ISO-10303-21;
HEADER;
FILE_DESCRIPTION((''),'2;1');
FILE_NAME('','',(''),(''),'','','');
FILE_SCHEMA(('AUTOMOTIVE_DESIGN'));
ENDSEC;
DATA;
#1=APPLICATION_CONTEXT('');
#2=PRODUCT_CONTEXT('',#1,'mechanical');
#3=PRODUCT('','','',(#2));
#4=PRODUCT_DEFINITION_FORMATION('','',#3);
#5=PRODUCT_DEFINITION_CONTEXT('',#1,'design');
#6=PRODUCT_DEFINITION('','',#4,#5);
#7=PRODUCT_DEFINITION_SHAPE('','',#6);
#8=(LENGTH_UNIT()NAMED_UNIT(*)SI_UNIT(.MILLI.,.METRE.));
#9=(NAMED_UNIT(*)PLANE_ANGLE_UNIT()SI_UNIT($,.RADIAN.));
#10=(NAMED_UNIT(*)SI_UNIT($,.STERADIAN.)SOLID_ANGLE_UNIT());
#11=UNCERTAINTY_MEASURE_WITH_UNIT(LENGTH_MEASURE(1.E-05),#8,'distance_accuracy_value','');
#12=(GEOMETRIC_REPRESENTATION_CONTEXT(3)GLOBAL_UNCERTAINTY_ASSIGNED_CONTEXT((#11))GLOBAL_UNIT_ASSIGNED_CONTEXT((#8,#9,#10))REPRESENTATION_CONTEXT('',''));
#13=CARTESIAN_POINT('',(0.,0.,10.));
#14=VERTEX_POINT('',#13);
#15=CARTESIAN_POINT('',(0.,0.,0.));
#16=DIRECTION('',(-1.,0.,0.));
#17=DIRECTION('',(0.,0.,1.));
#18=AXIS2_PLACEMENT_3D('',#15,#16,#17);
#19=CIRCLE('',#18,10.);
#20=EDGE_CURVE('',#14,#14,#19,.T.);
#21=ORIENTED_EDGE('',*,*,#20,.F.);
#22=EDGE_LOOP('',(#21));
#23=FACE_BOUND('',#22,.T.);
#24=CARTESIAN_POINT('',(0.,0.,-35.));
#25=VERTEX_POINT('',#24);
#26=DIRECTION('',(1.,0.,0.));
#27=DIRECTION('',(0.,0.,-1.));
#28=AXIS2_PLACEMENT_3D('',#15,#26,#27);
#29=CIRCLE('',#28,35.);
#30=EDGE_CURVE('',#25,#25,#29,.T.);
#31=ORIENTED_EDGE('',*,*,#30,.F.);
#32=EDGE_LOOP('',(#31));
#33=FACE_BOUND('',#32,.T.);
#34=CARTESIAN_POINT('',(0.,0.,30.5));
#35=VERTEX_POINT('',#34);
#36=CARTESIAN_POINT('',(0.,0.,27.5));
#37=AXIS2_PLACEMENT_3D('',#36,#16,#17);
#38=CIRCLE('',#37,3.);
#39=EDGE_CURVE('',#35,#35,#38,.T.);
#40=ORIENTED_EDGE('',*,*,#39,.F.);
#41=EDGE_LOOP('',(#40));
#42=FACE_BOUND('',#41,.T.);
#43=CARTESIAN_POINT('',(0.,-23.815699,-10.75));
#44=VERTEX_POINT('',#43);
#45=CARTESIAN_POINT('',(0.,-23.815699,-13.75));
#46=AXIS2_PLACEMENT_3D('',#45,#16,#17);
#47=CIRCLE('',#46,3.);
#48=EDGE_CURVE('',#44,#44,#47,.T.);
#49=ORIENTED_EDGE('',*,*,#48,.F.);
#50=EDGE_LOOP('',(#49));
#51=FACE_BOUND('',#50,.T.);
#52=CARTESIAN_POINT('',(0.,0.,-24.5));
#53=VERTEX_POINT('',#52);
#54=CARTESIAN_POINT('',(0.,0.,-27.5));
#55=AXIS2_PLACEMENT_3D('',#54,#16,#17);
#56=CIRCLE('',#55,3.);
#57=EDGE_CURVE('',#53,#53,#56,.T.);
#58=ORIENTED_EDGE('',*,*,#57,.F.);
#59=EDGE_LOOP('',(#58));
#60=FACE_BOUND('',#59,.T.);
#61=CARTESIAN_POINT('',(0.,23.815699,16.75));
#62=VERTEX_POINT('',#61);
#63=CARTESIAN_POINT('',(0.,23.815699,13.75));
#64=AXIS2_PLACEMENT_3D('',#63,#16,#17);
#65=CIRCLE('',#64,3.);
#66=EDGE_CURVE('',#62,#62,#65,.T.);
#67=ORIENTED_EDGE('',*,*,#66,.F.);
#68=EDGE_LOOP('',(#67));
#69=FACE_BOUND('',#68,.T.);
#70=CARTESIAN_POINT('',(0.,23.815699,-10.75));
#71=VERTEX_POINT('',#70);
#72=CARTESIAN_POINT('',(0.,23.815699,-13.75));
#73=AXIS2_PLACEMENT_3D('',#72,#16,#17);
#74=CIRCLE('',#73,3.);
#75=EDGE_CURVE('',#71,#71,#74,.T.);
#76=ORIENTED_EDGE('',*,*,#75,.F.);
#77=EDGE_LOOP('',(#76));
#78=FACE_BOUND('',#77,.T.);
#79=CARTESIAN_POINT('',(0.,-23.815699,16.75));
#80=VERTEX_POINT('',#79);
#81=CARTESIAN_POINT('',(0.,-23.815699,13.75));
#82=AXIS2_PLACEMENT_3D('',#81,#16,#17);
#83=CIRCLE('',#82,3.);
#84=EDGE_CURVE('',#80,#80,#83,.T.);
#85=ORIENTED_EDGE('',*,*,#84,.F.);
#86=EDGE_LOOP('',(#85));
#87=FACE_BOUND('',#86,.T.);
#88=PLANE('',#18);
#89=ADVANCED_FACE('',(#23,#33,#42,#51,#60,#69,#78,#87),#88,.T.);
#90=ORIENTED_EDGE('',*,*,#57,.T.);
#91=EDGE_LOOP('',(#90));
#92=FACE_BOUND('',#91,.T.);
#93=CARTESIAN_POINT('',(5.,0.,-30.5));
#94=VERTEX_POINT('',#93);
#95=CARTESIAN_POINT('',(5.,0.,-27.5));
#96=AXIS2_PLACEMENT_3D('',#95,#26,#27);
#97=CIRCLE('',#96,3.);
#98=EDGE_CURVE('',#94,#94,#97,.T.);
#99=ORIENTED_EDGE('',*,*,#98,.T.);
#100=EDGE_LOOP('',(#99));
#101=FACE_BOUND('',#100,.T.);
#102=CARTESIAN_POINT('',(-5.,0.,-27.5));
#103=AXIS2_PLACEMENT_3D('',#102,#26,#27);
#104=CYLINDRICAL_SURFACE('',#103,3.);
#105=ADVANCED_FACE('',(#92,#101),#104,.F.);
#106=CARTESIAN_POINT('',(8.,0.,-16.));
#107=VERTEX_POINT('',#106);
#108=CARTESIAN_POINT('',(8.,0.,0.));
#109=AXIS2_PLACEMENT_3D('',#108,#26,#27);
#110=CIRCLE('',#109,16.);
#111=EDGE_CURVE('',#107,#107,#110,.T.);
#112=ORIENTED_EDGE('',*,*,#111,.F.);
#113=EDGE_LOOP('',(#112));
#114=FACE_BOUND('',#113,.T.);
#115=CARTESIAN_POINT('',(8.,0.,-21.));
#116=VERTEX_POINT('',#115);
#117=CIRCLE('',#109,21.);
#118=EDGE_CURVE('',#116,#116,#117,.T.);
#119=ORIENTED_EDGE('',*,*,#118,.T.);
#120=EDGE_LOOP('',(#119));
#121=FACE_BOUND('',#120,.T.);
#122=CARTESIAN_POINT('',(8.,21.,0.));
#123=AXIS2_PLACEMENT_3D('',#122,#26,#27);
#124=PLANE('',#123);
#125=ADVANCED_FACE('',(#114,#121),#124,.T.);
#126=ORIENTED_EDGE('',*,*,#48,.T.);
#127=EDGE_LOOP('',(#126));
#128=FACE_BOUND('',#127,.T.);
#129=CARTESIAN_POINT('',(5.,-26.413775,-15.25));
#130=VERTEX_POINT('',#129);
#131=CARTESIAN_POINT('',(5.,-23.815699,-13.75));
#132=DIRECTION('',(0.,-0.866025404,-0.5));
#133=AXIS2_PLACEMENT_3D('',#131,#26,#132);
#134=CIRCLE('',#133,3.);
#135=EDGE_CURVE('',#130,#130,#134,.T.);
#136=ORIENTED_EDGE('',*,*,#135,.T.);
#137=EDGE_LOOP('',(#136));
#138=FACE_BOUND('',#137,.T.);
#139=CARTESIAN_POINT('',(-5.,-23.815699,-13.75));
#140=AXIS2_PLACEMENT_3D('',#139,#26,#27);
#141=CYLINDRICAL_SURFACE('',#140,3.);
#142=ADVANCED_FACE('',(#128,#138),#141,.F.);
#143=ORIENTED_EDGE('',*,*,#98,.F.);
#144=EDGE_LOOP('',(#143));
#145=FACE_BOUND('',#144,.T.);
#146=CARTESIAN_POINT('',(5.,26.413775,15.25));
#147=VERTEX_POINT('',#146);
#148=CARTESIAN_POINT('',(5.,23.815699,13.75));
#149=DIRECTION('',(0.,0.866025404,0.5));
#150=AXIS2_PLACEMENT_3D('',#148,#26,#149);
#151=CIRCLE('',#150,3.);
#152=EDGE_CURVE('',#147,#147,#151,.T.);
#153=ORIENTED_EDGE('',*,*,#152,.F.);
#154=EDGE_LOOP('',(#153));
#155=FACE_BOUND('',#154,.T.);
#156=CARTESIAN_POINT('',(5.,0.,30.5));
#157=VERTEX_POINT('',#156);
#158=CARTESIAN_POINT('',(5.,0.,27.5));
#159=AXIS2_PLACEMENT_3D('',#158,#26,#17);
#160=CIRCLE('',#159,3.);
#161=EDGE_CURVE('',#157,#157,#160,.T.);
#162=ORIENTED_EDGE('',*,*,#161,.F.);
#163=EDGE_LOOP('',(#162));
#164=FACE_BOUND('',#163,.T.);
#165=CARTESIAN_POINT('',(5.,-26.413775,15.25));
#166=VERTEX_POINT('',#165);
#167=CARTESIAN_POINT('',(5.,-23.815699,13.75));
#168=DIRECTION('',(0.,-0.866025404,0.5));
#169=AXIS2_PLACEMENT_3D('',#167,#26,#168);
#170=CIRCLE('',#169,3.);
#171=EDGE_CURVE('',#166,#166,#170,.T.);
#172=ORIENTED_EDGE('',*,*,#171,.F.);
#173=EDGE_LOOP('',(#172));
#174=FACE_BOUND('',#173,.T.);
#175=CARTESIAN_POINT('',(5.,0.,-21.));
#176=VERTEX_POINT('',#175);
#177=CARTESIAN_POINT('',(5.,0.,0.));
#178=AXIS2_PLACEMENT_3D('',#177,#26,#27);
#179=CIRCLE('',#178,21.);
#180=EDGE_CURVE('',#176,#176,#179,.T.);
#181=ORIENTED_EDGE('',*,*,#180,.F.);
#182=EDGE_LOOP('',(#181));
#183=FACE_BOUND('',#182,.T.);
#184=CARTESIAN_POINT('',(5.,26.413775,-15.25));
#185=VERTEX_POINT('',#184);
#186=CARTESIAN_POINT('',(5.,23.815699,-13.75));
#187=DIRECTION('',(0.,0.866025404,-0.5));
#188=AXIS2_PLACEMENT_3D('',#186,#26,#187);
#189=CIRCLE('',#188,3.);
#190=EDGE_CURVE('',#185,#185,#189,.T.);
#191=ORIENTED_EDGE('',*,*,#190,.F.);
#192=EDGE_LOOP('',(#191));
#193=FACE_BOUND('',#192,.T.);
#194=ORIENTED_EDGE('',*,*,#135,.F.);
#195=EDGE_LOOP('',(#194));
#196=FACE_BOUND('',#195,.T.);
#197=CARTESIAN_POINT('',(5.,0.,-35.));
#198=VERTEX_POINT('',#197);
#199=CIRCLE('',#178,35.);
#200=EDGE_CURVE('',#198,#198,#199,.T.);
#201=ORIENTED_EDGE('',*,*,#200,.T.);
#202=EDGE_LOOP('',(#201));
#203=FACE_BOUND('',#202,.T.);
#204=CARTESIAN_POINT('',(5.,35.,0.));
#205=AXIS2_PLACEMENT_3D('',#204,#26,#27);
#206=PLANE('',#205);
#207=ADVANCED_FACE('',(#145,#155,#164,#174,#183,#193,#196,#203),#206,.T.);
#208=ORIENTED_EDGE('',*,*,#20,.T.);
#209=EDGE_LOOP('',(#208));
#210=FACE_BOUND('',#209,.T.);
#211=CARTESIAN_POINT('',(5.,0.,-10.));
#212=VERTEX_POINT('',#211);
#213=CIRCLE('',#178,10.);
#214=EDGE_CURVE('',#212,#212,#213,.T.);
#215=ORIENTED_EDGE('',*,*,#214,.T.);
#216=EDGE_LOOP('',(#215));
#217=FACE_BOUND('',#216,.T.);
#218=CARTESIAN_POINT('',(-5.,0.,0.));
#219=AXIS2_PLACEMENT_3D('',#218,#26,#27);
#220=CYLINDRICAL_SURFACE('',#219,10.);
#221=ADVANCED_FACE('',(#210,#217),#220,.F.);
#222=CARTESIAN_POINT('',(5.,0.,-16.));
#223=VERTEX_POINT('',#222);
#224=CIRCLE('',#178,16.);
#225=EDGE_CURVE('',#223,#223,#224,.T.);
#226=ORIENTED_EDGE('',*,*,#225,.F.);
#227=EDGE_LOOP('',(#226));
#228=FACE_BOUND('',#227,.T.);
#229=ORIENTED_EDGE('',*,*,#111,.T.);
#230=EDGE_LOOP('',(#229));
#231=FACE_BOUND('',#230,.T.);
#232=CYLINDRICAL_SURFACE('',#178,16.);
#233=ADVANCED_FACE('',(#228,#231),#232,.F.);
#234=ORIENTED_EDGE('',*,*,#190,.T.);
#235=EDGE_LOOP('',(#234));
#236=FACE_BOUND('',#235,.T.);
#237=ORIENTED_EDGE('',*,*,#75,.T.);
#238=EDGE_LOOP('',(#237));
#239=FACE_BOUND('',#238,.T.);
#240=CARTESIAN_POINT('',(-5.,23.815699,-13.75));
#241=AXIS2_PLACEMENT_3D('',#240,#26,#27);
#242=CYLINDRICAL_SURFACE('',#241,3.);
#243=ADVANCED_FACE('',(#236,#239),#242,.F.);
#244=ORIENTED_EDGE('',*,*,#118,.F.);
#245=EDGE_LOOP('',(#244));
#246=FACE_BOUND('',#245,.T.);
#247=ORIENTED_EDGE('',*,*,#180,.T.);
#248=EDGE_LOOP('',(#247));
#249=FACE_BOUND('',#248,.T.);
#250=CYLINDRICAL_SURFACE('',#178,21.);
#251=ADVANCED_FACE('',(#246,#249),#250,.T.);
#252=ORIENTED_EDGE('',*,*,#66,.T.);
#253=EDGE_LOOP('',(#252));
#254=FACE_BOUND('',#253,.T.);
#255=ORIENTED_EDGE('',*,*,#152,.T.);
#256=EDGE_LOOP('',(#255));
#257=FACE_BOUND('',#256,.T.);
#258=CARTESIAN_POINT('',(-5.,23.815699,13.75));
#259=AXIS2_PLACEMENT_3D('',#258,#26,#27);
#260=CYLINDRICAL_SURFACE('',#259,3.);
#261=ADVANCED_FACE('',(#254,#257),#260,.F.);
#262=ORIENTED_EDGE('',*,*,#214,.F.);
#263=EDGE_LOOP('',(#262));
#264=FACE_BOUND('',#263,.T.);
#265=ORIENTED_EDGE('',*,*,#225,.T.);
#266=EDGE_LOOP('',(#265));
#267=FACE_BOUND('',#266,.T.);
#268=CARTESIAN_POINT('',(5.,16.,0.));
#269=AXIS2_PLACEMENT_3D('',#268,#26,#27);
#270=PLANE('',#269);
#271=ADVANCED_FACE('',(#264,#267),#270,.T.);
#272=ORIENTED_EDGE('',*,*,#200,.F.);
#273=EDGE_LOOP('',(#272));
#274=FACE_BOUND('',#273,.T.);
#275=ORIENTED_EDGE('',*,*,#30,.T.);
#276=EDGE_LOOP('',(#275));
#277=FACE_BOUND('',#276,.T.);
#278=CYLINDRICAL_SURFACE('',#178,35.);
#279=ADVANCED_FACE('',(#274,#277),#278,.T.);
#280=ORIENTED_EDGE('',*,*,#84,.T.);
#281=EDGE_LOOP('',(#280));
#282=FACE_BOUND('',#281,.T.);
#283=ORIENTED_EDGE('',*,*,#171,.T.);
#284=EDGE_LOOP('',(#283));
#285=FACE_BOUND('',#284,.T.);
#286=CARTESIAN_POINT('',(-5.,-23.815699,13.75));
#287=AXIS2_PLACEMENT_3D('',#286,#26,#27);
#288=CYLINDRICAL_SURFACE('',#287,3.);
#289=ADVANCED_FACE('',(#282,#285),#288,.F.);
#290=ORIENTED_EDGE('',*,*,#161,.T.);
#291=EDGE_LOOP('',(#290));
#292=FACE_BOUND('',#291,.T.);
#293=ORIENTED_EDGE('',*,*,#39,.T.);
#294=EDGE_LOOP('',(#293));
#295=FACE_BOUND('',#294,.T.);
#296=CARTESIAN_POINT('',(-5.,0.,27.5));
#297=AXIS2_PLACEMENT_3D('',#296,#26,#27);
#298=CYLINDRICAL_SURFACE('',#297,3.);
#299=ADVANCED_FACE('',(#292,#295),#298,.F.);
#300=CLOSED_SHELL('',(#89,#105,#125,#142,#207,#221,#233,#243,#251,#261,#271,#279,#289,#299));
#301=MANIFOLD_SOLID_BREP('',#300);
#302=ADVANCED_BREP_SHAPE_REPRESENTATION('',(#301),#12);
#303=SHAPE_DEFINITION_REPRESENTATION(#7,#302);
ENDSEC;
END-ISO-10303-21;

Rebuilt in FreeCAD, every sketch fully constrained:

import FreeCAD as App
import Part
import Sketcher
from FreeCAD import Vector
Q = App.Units.Quantity


def add_polygon(sketch, points):
    """Adds a closed chain of lines whose ends are joined by coincident constraints."""
    first, n = sketch.GeometryCount, len(points)
    for a, b in zip(points, points[1:] + points[:1]):
        sketch.addGeometry(Part.LineSegment(App.Vector(*a, 0), App.Vector(*b, 0)), False)
    for i in range(n):
        sketch.addConstraint(Sketcher.Constraint("Coincident", first + i, 2, first + (i + 1) % n, 1))

doc = App.newDocument("Part")
body = doc.addObject("PartDesign::Body", "Body")

# Sketch on XY plane
sketch1 = doc.addObject("Sketcher::SketchObject", "Sketch")
body.addObject(sketch1)
sketch1.AttachmentSupport = (doc.XY_Plane, [""])
sketch1.MapMode = "FlatFace"
add_polygon(sketch1, [(5, 35), (0, 35), (0, 0), (5, 0), (5, 16), (8, 16), (8, 21), (5, 21)])  # lines 0-7
sketch1.addConstraint(Sketcher.Constraint("Horizontal", 0))
sketch1.addConstraint(Sketcher.Constraint("Vertical", 1))
sketch1.addConstraint(Sketcher.Constraint("Horizontal", 2))
sketch1.addConstraint(Sketcher.Constraint("Vertical", 3))
sketch1.addConstraint(Sketcher.Constraint("Horizontal", 4))
sketch1.addConstraint(Sketcher.Constraint("Vertical", 5))
sketch1.addConstraint(Sketcher.Constraint("Horizontal", 6))
sketch1.addConstraint(Sketcher.Constraint("Vertical", 7))
sketch1.addConstraint(Sketcher.Constraint("Coincident", 1, 2, -1, 1))
sketch1.addConstraint(Sketcher.Constraint("Vertical", 3, 2, 6, 2))
sketch1.addConstraint(Sketcher.Constraint("Equal", 2, 5))
sketch1.addConstraint(Sketcher.Constraint("DistanceX", 0, 2, 0, 1, Q("5 mm")))
sketch1.addConstraint(Sketcher.Constraint("DistanceX", 4, 1, 4, 2, Q("3 mm")))
sketch1.addConstraint(Sketcher.Constraint("DistanceY", 1, 2, 1, 1, Q("35 mm")))
sketch1.addConstraint(Sketcher.Constraint("DistanceY", 3, 1, 3, 2, Q("16 mm")))
revolution = doc.addObject("PartDesign::Revolution", "Revolution")
body.addObject(revolution)
revolution.Profile = sketch1
revolution.ReferenceAxis = (sketch1, ["H_Axis"])
revolution.Angle = 360

# Sketch on YZ plane
sketch2 = doc.addObject("Sketcher::SketchObject", "Sketch001")
body.addObject(sketch2)
sketch2.AttachmentSupport = (doc.YZ_Plane, [""])
sketch2.MapMode = "FlatFace"
sketch2.AttachmentOffset = App.Placement(Vector(0, 0, 5), App.Rotation())
sketch2.addGeometry(Part.Circle(Vector(0, -27.5, 0), Vector(0, 0, 1), 3), False)
sketch2.addConstraint(Sketcher.Constraint("PointOnObject", 0, 3, -2))
sketch2.addConstraint(Sketcher.Constraint("Diameter", 0, Q("6 mm")))
sketch2.addConstraint(Sketcher.Constraint("DistanceY", 0, 3, -1, 1, Q("27.5 mm")))
pocket1 = doc.addObject("PartDesign::Pocket", "Pocket")
body.addObject(pocket1)
pocket1.Profile = sketch2
pocket1.Length = 10
doc.recompute()

polarpattern = doc.addObject("PartDesign::PolarPattern", "PolarPattern")
body.addObject(polarpattern)
polarpattern.Originals = [pocket1]
polarpattern.Axis = (doc.X_Axis, [""])
polarpattern.Angle = 360
polarpattern.Occurrences = 6
body.Tip = polarpattern

# Sketch on YZ plane
sketch3 = doc.addObject("Sketcher::SketchObject", "Sketch002")
body.addObject(sketch3)
sketch3.AttachmentSupport = (doc.YZ_Plane, [""])
sketch3.MapMode = "FlatFace"
sketch3.AttachmentOffset = App.Placement(Vector(0, 0, 5), App.Rotation())
sketch3.addGeometry(Part.Circle(Vector(0, 0, 0), Vector(0, 0, 1), 10), False)
sketch3.addConstraint(Sketcher.Constraint("Coincident", 0, 3, -1, 1))
sketch3.addConstraint(Sketcher.Constraint("Diameter", 0, Q("20 mm")))
pocket2 = doc.addObject("PartDesign::Pocket", "Pocket001")
body.addObject(pocket2)
pocket2.Profile = sketch3
pocket2.Length = 10

doc.recompute()
